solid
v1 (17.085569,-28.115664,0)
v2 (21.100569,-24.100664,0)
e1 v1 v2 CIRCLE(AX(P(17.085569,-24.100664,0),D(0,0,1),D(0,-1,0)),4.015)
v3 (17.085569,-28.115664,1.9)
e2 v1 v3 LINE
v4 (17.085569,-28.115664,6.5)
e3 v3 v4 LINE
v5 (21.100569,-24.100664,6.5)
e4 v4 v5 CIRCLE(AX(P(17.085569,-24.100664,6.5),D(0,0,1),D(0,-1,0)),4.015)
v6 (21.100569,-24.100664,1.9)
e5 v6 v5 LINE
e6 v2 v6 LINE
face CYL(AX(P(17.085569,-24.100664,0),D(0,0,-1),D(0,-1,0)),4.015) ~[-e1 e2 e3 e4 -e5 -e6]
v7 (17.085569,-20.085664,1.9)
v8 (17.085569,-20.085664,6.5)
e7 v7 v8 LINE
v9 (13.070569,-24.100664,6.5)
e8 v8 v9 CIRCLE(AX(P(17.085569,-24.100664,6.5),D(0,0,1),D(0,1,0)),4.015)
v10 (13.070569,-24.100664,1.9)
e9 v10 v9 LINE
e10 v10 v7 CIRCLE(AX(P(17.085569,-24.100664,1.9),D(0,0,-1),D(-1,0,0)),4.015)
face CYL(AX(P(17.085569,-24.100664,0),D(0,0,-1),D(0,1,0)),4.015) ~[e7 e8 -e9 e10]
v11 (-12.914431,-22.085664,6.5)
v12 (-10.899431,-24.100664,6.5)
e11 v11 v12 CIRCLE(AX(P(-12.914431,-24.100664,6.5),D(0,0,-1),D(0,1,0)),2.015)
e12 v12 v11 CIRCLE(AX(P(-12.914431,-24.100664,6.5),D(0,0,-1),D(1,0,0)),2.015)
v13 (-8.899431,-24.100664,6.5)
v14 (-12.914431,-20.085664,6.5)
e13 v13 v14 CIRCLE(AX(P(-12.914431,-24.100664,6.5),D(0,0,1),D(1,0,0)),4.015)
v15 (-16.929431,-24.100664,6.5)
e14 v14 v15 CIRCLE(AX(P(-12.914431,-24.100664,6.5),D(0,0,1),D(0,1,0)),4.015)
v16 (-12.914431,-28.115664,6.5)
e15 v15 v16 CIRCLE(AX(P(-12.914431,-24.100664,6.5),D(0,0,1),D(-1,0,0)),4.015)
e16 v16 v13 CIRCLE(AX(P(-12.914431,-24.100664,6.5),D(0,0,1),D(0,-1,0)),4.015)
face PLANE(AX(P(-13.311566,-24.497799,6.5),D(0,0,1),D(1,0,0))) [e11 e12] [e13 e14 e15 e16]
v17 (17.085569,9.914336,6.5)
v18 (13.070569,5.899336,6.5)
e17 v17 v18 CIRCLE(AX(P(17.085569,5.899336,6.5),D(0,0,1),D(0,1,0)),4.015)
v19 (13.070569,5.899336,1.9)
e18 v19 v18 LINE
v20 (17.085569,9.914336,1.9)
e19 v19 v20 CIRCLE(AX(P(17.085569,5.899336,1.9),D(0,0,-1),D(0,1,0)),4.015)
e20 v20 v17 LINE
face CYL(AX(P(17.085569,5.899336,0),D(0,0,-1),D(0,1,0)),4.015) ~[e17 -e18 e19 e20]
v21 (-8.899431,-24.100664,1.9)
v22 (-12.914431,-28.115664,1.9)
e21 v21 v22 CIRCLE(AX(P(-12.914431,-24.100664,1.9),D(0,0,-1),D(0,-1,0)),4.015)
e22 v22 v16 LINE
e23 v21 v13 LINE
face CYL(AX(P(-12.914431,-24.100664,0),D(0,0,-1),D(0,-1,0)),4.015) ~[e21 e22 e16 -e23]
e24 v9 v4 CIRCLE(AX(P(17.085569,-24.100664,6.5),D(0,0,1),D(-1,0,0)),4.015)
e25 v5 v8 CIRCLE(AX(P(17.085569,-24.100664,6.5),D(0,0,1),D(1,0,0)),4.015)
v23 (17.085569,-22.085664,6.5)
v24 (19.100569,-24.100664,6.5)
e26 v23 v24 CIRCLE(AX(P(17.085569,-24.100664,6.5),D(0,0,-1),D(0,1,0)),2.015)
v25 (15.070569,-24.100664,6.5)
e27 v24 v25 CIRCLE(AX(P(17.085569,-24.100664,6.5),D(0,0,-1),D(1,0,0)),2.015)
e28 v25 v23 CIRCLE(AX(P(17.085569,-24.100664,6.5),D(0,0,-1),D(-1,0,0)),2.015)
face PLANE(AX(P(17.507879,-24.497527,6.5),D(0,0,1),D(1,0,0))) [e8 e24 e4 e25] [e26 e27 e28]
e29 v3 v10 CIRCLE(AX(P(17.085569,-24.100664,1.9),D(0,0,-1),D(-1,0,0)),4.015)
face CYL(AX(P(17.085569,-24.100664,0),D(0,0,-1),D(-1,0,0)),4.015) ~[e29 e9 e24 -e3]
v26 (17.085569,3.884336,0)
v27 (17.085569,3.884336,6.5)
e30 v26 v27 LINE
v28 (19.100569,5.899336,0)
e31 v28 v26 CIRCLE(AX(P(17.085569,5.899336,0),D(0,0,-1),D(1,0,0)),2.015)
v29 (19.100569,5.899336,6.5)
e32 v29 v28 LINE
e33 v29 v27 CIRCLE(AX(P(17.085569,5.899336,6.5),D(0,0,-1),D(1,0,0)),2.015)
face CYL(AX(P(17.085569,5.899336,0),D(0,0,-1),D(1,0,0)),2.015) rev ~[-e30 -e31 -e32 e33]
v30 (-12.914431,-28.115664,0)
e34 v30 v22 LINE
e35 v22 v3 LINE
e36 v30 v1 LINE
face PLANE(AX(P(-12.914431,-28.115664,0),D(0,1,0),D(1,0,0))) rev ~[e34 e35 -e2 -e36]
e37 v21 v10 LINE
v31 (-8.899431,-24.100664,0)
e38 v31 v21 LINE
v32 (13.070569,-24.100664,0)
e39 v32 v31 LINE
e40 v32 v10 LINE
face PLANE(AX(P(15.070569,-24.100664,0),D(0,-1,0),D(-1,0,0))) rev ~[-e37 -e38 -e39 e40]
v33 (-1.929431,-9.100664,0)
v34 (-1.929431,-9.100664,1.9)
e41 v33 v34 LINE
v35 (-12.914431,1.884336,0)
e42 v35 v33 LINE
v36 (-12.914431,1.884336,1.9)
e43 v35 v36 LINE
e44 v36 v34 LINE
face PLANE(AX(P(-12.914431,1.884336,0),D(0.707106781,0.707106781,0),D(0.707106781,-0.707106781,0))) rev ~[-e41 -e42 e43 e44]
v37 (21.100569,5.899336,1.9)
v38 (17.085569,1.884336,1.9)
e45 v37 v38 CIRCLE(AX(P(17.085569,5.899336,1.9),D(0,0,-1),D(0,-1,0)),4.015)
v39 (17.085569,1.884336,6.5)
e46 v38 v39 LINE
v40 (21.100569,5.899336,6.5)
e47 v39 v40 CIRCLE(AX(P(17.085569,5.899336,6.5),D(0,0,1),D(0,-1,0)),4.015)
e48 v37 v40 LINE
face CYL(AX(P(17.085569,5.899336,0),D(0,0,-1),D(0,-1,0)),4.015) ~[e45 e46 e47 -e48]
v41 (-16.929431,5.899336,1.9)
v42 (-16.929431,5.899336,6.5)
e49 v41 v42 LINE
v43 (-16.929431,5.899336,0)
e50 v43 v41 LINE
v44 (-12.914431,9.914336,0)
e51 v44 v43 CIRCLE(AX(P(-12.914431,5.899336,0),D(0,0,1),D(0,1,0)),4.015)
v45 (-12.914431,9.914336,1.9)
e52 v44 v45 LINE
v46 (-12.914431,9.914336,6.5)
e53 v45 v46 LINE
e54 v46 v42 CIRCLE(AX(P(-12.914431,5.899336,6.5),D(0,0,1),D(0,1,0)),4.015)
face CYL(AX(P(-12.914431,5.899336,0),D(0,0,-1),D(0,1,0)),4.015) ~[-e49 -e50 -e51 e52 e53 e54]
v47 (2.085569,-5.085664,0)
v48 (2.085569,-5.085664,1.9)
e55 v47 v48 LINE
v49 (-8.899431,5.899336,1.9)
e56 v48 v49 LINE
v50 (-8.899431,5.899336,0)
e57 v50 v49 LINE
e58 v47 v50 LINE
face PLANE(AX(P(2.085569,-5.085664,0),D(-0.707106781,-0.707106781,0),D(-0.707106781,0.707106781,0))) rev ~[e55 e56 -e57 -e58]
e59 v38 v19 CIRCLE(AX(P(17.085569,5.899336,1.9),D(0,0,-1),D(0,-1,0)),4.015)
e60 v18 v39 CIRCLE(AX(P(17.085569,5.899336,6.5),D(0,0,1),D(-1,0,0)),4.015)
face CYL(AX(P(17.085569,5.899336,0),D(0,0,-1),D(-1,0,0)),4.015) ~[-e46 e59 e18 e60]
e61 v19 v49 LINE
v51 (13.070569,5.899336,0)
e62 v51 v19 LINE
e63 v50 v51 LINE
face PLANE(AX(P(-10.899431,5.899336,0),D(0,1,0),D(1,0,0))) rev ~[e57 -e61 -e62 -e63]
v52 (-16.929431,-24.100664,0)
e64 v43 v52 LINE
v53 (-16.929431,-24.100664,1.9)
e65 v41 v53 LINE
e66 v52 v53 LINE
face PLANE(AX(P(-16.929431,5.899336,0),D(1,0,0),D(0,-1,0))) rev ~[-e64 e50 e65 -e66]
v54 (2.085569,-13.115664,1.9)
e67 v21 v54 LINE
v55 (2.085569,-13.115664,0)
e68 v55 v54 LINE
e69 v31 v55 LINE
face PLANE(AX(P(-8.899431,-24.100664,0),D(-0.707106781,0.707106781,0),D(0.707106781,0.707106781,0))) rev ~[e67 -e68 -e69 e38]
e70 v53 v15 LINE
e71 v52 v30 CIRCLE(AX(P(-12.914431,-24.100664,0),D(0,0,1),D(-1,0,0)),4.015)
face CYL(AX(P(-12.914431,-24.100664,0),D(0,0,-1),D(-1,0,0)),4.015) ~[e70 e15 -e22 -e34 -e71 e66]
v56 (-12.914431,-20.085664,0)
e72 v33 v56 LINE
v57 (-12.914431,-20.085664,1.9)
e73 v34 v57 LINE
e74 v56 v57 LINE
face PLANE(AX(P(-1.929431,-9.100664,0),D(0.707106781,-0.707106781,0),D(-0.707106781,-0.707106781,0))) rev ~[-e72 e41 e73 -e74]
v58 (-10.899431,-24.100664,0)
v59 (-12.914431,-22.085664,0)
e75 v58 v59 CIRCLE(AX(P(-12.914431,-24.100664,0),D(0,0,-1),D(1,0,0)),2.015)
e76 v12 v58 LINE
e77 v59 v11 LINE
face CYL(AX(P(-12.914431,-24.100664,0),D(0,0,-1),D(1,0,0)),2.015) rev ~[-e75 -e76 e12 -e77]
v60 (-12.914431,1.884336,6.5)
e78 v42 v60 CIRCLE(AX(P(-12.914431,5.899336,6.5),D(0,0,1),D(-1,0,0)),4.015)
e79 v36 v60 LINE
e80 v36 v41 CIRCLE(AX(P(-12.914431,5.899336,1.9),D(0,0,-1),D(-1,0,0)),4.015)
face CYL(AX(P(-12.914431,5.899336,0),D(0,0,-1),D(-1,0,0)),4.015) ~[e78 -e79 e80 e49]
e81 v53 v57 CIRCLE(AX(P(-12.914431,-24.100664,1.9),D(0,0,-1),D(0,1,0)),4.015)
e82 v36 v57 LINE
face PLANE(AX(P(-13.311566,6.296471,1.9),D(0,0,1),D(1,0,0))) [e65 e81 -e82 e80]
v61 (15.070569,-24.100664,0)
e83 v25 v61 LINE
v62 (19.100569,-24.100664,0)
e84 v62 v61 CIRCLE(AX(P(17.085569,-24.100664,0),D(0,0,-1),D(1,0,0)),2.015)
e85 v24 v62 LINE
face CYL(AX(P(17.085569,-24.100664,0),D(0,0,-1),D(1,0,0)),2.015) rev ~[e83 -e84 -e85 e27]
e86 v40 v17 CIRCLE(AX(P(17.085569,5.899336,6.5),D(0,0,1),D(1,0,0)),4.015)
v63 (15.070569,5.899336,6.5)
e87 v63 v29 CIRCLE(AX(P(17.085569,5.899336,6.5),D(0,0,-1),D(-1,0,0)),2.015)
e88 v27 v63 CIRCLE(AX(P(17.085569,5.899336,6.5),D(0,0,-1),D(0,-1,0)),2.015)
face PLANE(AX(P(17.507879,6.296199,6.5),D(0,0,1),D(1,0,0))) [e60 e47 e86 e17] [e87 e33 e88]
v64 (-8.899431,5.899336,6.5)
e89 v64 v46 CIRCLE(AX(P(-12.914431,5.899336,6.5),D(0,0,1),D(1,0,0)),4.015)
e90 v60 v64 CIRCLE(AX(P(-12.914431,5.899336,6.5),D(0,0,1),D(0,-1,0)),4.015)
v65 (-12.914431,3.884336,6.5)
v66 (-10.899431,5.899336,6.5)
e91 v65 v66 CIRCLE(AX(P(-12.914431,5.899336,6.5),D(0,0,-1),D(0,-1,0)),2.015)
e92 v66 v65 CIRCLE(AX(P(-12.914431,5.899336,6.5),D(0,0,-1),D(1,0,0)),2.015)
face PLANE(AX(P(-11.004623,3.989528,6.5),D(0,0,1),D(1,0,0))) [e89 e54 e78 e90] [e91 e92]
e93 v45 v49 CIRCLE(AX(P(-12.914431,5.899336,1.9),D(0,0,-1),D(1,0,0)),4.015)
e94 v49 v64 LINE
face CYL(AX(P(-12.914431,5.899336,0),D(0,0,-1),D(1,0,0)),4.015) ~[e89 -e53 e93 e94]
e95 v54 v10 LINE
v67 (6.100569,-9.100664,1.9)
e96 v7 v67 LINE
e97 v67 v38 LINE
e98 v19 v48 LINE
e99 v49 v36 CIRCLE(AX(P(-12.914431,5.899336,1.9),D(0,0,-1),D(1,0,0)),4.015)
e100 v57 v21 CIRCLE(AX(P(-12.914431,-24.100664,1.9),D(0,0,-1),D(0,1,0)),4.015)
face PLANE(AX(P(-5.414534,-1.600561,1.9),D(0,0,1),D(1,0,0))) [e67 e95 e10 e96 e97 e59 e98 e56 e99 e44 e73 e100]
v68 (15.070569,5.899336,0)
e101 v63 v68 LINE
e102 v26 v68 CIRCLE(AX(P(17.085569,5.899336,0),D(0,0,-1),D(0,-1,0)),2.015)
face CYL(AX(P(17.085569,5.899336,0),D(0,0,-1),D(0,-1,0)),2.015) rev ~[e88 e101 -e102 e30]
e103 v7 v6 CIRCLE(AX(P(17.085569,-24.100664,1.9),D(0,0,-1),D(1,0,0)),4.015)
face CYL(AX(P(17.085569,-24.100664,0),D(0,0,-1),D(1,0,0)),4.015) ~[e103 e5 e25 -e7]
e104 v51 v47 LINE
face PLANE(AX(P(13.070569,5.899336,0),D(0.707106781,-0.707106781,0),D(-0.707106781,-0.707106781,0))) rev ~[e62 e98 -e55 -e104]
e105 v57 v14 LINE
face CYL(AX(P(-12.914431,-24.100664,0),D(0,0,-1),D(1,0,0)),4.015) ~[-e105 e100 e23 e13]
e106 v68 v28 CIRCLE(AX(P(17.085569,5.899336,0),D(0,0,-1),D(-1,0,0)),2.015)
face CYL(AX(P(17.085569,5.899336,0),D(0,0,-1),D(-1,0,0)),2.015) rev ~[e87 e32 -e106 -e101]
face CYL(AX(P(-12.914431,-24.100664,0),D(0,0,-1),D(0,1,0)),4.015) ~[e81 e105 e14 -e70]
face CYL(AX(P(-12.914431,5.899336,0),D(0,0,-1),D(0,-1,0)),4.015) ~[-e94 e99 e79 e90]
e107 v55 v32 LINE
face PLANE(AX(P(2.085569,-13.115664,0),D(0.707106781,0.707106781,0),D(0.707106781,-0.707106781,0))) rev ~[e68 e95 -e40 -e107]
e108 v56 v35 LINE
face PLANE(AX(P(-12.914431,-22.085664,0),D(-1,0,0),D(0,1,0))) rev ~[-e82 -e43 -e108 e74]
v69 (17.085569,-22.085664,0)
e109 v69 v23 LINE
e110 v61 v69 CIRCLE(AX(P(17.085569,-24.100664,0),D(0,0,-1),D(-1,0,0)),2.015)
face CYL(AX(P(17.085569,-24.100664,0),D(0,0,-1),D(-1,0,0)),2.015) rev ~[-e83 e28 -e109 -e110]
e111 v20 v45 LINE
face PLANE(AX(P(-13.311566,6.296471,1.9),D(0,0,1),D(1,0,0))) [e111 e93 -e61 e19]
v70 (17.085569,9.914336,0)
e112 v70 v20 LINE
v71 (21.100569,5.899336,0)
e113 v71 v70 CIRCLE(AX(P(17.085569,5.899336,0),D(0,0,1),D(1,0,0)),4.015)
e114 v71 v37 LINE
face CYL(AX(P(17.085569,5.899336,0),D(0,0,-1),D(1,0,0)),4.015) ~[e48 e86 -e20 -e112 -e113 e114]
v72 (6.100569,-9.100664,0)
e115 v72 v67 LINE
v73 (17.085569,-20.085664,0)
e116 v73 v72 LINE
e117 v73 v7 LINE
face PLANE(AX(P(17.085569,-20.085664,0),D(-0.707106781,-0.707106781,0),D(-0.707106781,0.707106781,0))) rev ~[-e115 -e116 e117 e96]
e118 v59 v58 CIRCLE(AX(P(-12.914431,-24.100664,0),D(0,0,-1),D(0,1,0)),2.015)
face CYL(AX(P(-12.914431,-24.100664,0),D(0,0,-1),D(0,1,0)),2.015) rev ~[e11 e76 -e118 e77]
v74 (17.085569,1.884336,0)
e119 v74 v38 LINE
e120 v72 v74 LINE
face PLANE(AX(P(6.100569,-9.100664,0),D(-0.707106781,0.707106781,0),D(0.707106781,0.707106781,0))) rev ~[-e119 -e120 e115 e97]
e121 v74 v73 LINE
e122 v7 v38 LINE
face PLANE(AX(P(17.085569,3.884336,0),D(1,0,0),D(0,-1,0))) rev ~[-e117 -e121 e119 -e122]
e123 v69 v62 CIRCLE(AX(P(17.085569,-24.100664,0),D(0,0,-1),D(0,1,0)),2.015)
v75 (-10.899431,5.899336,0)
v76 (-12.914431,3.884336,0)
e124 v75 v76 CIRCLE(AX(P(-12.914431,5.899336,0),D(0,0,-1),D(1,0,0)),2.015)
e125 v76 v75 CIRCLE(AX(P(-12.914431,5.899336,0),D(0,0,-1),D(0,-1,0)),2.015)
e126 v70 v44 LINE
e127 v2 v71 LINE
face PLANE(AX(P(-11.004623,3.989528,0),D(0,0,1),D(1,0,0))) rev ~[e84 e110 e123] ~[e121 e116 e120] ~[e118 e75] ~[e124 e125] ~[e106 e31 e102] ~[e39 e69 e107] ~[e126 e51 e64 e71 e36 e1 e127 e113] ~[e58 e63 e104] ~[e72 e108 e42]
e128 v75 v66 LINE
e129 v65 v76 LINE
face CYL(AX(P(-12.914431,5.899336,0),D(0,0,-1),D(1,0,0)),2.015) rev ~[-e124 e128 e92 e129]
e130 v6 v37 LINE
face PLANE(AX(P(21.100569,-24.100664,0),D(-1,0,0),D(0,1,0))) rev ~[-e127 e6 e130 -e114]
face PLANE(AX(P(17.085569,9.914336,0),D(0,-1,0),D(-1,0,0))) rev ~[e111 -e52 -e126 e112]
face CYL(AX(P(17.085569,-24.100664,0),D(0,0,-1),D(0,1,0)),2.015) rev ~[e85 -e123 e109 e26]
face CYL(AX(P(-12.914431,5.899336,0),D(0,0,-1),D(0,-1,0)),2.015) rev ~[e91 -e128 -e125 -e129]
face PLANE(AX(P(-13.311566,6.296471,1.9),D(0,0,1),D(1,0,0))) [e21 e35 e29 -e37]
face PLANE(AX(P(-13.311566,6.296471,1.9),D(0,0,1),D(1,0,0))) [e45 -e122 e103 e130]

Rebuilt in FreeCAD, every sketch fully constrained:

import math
import FreeCAD as App
import Part
import Sketcher
Q = App.Units.Quantity

doc = App.newDocument("Part")
body = doc.addObject("PartDesign::Body", "Body")

sketch1 = body.newObject("Sketcher::SketchObject", "Sketch")
sketch1.AttachmentSupport = (doc.getObject("XY_Plane"), [""])
sketch1.MapMode = "FlatFace"
sketch1.addGeometry([
    Part.ArcOfCircle(Part.Circle(App.Vector(-12.914431, 5.899336, 0), App.Vector(0, 0, 1), 4.015), math.radians(-90), math.radians(0)),
    Part.ArcOfCircle(Part.Circle(App.Vector(-12.914431, 5.899336, 0), App.Vector(0, 0, 1), 4.015), math.radians(0), math.radians(90)),
    Part.ArcOfCircle(Part.Circle(App.Vector(-12.914431, 5.899336, 0), App.Vector(0, 0, 1), 4.015), math.radians(90), math.radians(180)),
    Part.ArcOfCircle(Part.Circle(App.Vector(-12.914431, 5.899336, 0), App.Vector(0, 0, 1), 4.015), math.radians(180), math.radians(270)),
    Part.ArcOfCircle(Part.Circle(App.Vector(-12.914431, 5.899336, 0), App.Vector(0, 0, 1), 2.015), math.radians(-90), math.radians(0)),
    Part.ArcOfCircle(Part.Circle(App.Vector(-12.914431, 5.899336, 0), App.Vector(0, 0, 1), 2.015), math.radians(0), math.radians(270)),
], False)
sketch1.addConstraint([
    Sketcher.Constraint("Tangent", 0, 2, 1, 1),
    Sketcher.Constraint("Tangent", 1, 2, 2, 1),
    Sketcher.Constraint("Tangent", 2, 2, 3, 1),
    Sketcher.Constraint("Tangent", 3, 2, 0, 1),
    Sketcher.Constraint("Tangent", 4, 1, 5, 2),
    Sketcher.Constraint("Coincident", 5, 1, 4, 2),
    Sketcher.Constraint("Coincident", 4, 3, 0, 3),
    Sketcher.Constraint("Equal", 0, 1),
    Sketcher.Constraint("Horizontal", 5, 3, 0, 2),
    Sketcher.Constraint("Horizontal", 0, 2, 2, 2),
    Sketcher.Constraint("Horizontal", 2, 2, 5, 1),
    Sketcher.Constraint("Vertical", 5, 3, 1, 2),
    Sketcher.Constraint("Vertical", 1, 2, 3, 2),
    Sketcher.Constraint("Vertical", 3, 2, 4, 1),
    Sketcher.Constraint("Radius", 0, Q("4.015 mm")),
    Sketcher.Constraint("Radius", 4, Q("2.015 mm")),
    Sketcher.Constraint("DistanceX", 0, 3, -1, 1, Q("12.914431 mm")),
    Sketcher.Constraint("DistanceY", -1, 1, 0, 3, Q("5.899336 mm")),
])
pad1 = body.newObject("PartDesign::Pad", "Pad")
pad1.Profile = sketch1
pad1.Length = 6.5
body2 = doc.addObject("PartDesign::Body", "Body001")

sketch2 = body2.newObject("Sketcher::SketchObject", "Sketch001")
sketch2.AttachmentSupport = (doc.getObject("XY_Plane001"), [""])
sketch2.MapMode = "FlatFace"
sketch2.addGeometry([
    Part.ArcOfCircle(Part.Circle(App.Vector(17.085569, 5.899336, 0), App.Vector(0, 0, 1), 4.015), math.radians(90), math.radians(180)),
    Part.ArcOfCircle(Part.Circle(App.Vector(17.085569, 5.899336, 0), App.Vector(0, 0, 1), 4.015), math.radians(180), math.radians(270)),
    Part.ArcOfCircle(Part.Circle(App.Vector(17.085569, 5.899336, 0), App.Vector(0, 0, 1), 4.015), math.radians(-90), math.radians(0)),
    Part.ArcOfCircle(Part.Circle(App.Vector(17.085569, 5.899336, 0), App.Vector(0, 0, 1), 4.015), math.radians(0), math.radians(90)),
    Part.ArcOfCircle(Part.Circle(App.Vector(17.085569, 5.899336, 0), App.Vector(0, 0, 1), 2.015), math.radians(0), math.radians(180)),
    Part.ArcOfCircle(Part.Circle(App.Vector(17.085569, 5.899336, 0), App.Vector(0, 0, 1), 2.015), math.radians(-90), math.radians(0)),
    Part.ArcOfCircle(Part.Circle(App.Vector(17.085569, 5.899336, 0), App.Vector(0, 0, 1), 2.015), math.radians(180), math.radians(270)),
], False)
sketch2.addConstraint([
    Sketcher.Constraint("Tangent", 0, 2, 1, 1),
    Sketcher.Constraint("Tangent", 1, 2, 2, 1),
    Sketcher.Constraint("Tangent", 2, 2, 3, 1),
    Sketcher.Constraint("Tangent", 3, 2, 0, 1),
    Sketcher.Constraint("Tangent", 4, 1, 5, 2),
    Sketcher.Constraint("Tangent", 5, 1, 6, 2),
    Sketcher.Constraint("Tangent", 6, 1, 4, 2),
    Sketcher.Constraint("Coincident", 4, 3, 0, 3),
    Sketcher.Constraint("Equal", 0, 1),
    Sketcher.Constraint("Horizontal", 6, 3, 0, 2),
    Sketcher.Constraint("Horizontal", 0, 2, 2, 2),
    Sketcher.Constraint("Horizontal", 2, 2, 4, 1),
    Sketcher.Constraint("Horizontal", 4, 1, 6, 1),
    Sketcher.Constraint("Vertical", 6, 3, 1, 2),
    Sketcher.Constraint("Vertical", 1, 2, 3, 2),
    Sketcher.Constraint("Vertical", 3, 2, 5, 1),
    Sketcher.Constraint("Radius", 0, Q("4.015 mm")),
    Sketcher.Constraint("Radius", 4, Q("2.015 mm")),
    Sketcher.Constraint("DistanceX", -1, 1, 0, 3, Q("17.085569 mm")),
    Sketcher.Constraint("DistanceY", -1, 1, 0, 3, Q("5.899336 mm")),
])
pad2 = body2.newObject("PartDesign::Pad", "Pad001")
pad2.Profile = sketch2
pad2.Length = 6.5
body3 = doc.addObject("PartDesign::Body", "Body002")

sketch3 = body3.newObject("Sketcher::SketchObject", "Sketch002")
sketch3.AttachmentSupport = (doc.getObject("XY_Plane002"), [""])
sketch3.MapMode = "FlatFace"
sketch3.addGeometry([
    Part.ArcOfCircle(Part.Circle(App.Vector(17.085569, -24.100664, 0), App.Vector(0, 0, 1), 4.015), math.radians(0), math.radians(90)),
    Part.ArcOfCircle(Part.Circle(App.Vector(17.085569, -24.100664, 0), App.Vector(0, 0, 1), 4.015), math.radians(90), math.radians(180)),
    Part.ArcOfCircle(Part.Circle(App.Vector(17.085569, -24.100664, 0), App.Vector(0, 0, 1), 4.015), math.radians(180), math.radians(270)),
    Part.ArcOfCircle(Part.Circle(App.Vector(17.085569, -24.100664, 0), App.Vector(0, 0, 1), 4.015), math.radians(-90), math.radians(0)),
    Part.ArcOfCircle(Part.Circle(App.Vector(17.085569, -24.100664, 0), App.Vector(0, 0, 1), 2.015), math.radians(0), math.radians(90)),
    Part.ArcOfCircle(Part.Circle(App.Vector(17.085569, -24.100664, 0), App.Vector(0, 0, 1), 2.015), math.radians(180), math.radians(360)),
    Part.ArcOfCircle(Part.Circle(App.Vector(17.085569, -24.100664, 0), App.Vector(0, 0, 1), 2.015), math.radians(90), math.radians(180)),
], False)
sketch3.addConstraint([
    Sketcher.Constraint("Tangent", 0, 2, 1, 1),
    Sketcher.Constraint("Tangent", 1, 2, 2, 1),
    Sketcher.Constraint("Tangent", 2, 2, 3, 1),
    Sketcher.Constraint("Tangent", 3, 2, 0, 1),
    Sketcher.Constraint("Tangent", 4, 1, 5, 2),
    Sketcher.Constraint("Tangent", 5, 1, 6, 2),
    Sketcher.Constraint("Tangent", 6, 1, 4, 2),
    Sketcher.Constraint("Coincident", 4, 3, 0, 3),
    Sketcher.Constraint("Equal", 0, 1),
    Sketcher.Constraint("Horizontal", 6, 3, 1, 2),
    Sketcher.Constraint("Horizontal", 1, 2, 3, 2),
    Sketcher.Constraint("Horizontal", 3, 2, 4, 1),
    Sketcher.Constraint("Horizontal", 4, 1, 5, 1),
    Sketcher.Constraint("Vertical", 6, 3, 0, 2),
    Sketcher.Constraint("Vertical", 0, 2, 2, 2),
    Sketcher.Constraint("Vertical", 2, 2, 6, 1),
    Sketcher.Constraint("Radius", 0, Q("4.015 mm")),
    Sketcher.Constraint("Radius", 4, Q("2.015 mm")),
    Sketcher.Constraint("DistanceX", -1, 1, 0, 3, Q("17.085569 mm")),
    Sketcher.Constraint("DistanceY", 0, 3, -1, 1, Q("24.100664 mm")),
])
pad3 = body3.newObject("PartDesign::Pad", "Pad002")
pad3.Profile = sketch3
pad3.Length = 6.5
body4 = doc.addObject("PartDesign::Body", "Body003")

sketch4 = body4.newObject("Sketcher::SketchObject", "Sketch003")
sketch4.AttachmentSupport = (doc.getObject("XY_Plane003"), [""])
sketch4.MapMode = "FlatFace"
sketch4.addGeometry([
    Part.ArcOfCircle(Part.Circle(App.Vector(-12.914431, -24.100664, 0), App.Vector(0, 0, 1), 4.015), math.radians(90), math.radians(180)),
    Part.ArcOfCircle(Part.Circle(App.Vector(-12.914431, -24.100664, 0), App.Vector(0, 0, 1), 4.015), math.radians(180), math.radians(270)),
    Part.ArcOfCircle(Part.Circle(App.Vector(-12.914431, -24.100664, 0), App.Vector(0, 0, 1), 4.015), math.radians(-90), math.radians(0)),
    Part.ArcOfCircle(Part.Circle(App.Vector(-12.914431, -24.100664, 0), App.Vector(0, 0, 1), 4.015), math.radians(0), math.radians(90)),
    Part.ArcOfCircle(Part.Circle(App.Vector(-12.914431, -24.100664, 0), App.Vector(0, 0, 1), 2.015), math.radians(90), math.radians(360)),
    Part.ArcOfCircle(Part.Circle(App.Vector(-12.914431, -24.100664, 0), App.Vector(0, 0, 1), 2.015), math.radians(0), math.radians(90)),
], False)
sketch4.addConstraint([
    Sketcher.Constraint("Tangent", 0, 2, 1, 1),
    Sketcher.Constraint("Tangent", 1, 2, 2, 1),
    Sketcher.Constraint("Tangent", 2, 2, 3, 1),
    Sketcher.Constraint("Tangent", 3, 2, 0, 1),
    Sketcher.Constraint("Tangent", 4, 1, 5, 2),
    Sketcher.Constraint("Coincident", 5, 1, 4, 2),
    Sketcher.Constraint("Coincident", 4, 3, 0, 3),
    Sketcher.Constraint("Equal", 0, 1),
    Sketcher.Constraint("Horizontal", 5, 3, 0, 2),
    Sketcher.Constraint("Horizontal", 0, 2, 2, 2),
    Sketcher.Constraint("Horizontal", 2, 2, 5, 1),
    Sketcher.Constraint("Vertical", 5, 3, 1, 2),
    Sketcher.Constraint("Vertical", 1, 2, 3, 2),
    Sketcher.Constraint("Vertical", 3, 2, 4, 1),
    Sketcher.Constraint("Radius", 0, Q("4.015 mm")),
    Sketcher.Constraint("Radius", 4, Q("2.015 mm")),
    Sketcher.Constraint("DistanceX", 0, 3, -1, 1, Q("12.914431 mm")),
    Sketcher.Constraint("DistanceY", 0, 3, -1, 1, Q("24.100664 mm")),
])
pad4 = body4.newObject("PartDesign::Pad", "Pad003")
pad4.Profile = sketch4
pad4.Length = 6.5
body.AllowCompound = True
doc.recompute()

boolean = body.newObject("PartDesign::Boolean", "Boolean")
boolean.Type = "Fuse"
boolean.addObjects([body2])
doc.recompute()

boolean2 = body.newObject("PartDesign::Boolean", "Boolean001")
boolean2.Type = "Fuse"
boolean2.addObjects([body3])
doc.recompute()

boolean3 = body.newObject("PartDesign::Boolean", "Boolean002")
boolean3.Type = "Fuse"
boolean3.addObjects([body4])

sketch5 = body.newObject("Sketcher::SketchObject", "Sketch004")
sketch5.AttachmentSupport = (doc.getObject("XY_Plane"), [""])
sketch5.MapMode = "FlatFace"
sketch5.addGeometry([
    Part.LineSegment(App.Vector(21.100569, -24.100664, 0), App.Vector(21.100569, 5.899336, 0)),
    Part.ArcOfCircle(Part.Circle(App.Vector(17.085569, 5.899336, 0), App.Vector(0, 0, 1), 4.015), math.radians(0), math.radians(90)),
    Part.LineSegment(App.Vector(17.085569, 9.914336, 0), App.Vector(-12.914431, 9.914336, 0)),
    Part.ArcOfCircle(Part.Circle(App.Vector(-12.914431, 5.899336, 0), App.Vector(0, 0, 1), 4.015), math.radians(90), math.radians(180)),
    Part.LineSegment(App.Vector(-16.929431, 5.899336, 0), App.Vector(-16.929431, -24.100664, 0)),
    Part.ArcOfCircle(Part.Circle(App.Vector(-12.914431, -24.100664, 0), App.Vector(0, 0, 1), 4.015), math.radians(180), math.radians(270)),
    Part.LineSegment(App.Vector(-12.914431, -28.115664, 0), App.Vector(17.085569, -28.115664, 0)),
    Part.ArcOfCircle(Part.Circle(App.Vector(17.085569, -24.100664, 0), App.Vector(0, 0, 1), 4.015), math.radians(-90), math.radians(0)),
    Part.ArcOfCircle(Part.Circle(App.Vector(-12.914431, 5.899336, 0), App.Vector(0, 0, 1), 2.015), math.radians(0), math.radians(270)),
    Part.LineSegment(App.Vector(-10.899431, 5.899336, 0), App.Vector(-8.899431, 5.899336, 0)),
    Part.LineSegment(App.Vector(-8.899431, 5.899336, 0), App.Vector(13.070569, 5.899336, 0)),
    Part.LineSegment(App.Vector(13.070569, 5.899336, 0), App.Vector(15.070569, 5.899336, 0)),
    Part.ArcOfCircle(Part.Circle(App.Vector(17.085569, 5.899336, 0), App.Vector(0, 0, 1), 2.015), math.radians(0), math.radians(180)),
    Part.ArcOfCircle(Part.Circle(App.Vector(17.085569, 5.899336, 0), App.Vector(0, 0, 1), 2.015), math.radians(-90), math.radians(0)),
    Part.LineSegment(App.Vector(17.085569, 3.884336, 0), App.Vector(17.085569, 1.884336, 0)),
    Part.LineSegment(App.Vector(17.085569, 1.884336, 0), App.Vector(17.085569, -20.085664, 0)),
    Part.LineSegment(App.Vector(17.085569, -20.085664, 0), App.Vector(17.085569, -22.085664, 0)),
    Part.ArcOfCircle(Part.Circle(App.Vector(17.085569, -24.100664, 0), App.Vector(0, 0, 1), 2.015), math.radians(0), math.radians(90)),
    Part.ArcOfCircle(Part.Circle(App.Vector(17.085569, -24.100664, 0), App.Vector(0, 0, 1), 2.015), math.radians(180), math.radians(360)),
    Part.LineSegment(App.Vector(15.070569, -24.100664, 0), App.Vector(13.070569, -24.100664, 0)),
    Part.LineSegment(App.Vector(13.070569, -24.100664, 0), App.Vector(-8.899431, -24.100664, 0)),
    Part.LineSegment(App.Vector(-8.899431, -24.100664, 0), App.Vector(-10.899431, -24.100664, 0)),
    Part.ArcOfCircle(Part.Circle(App.Vector(-12.914431, -24.100664, 0), App.Vector(0, 0, 1), 2.015), math.radians(90), math.radians(360)),
    Part.LineSegment(App.Vector(-12.914431, -22.085664, 0), App.Vector(-12.914431, -20.085664, 0)),
    Part.LineSegment(App.Vector(-12.914431, -20.085664, 0), App.Vector(-12.914431, 1.884336, 0)),
    Part.LineSegment(App.Vector(-12.914431, 1.884336, 0), App.Vector(-12.914431, 3.884336, 0)),
    Part.LineSegment(App.Vector(2.085569, -5.085664, 0), App.Vector(-8.899431, 5.899336, 0)),
    Part.ArcOfCircle(Part.Circle(App.Vector(-12.914431, 5.899336, 0), App.Vector(0, 0, 1), 4.015), math.radians(-90), math.radians(0)),
    Part.LineSegment(App.Vector(-12.914431, 1.884336, 0), App.Vector(-1.929431, -9.100664, 0)),
    Part.LineSegment(App.Vector(-1.929431, -9.100664, 0), App.Vector(-12.914431, -20.085664, 0)),
    Part.ArcOfCircle(Part.Circle(App.Vector(-12.914431, -24.100664, 0), App.Vector(0, 0, 1), 4.015), math.radians(0), math.radians(90)),
    Part.LineSegment(App.Vector(-8.899431, -24.100664, 0), App.Vector(2.085569, -13.115664, 0)),
    Part.LineSegment(App.Vector(2.085569, -13.115664, 0), App.Vector(13.070569, -24.100664, 0)),
    Part.ArcOfCircle(Part.Circle(App.Vector(17.085569, -24.100664, 0), App.Vector(0, 0, 1), 4.015), math.radians(90), math.radians(180)),
    Part.LineSegment(App.Vector(17.085569, -20.085664, 0), App.Vector(6.100569, -9.100664, 0)),
    Part.LineSegment(App.Vector(6.100569, -9.100664, 0), App.Vector(17.085569, 1.884336, 0)),
    Part.ArcOfCircle(Part.Circle(App.Vector(17.085569, 5.899336, 0), App.Vector(0, 0, 1), 4.015), math.radians(180), math.radians(270)),
    Part.LineSegment(App.Vector(13.070569, 5.899336, 0), App.Vector(2.085569, -5.085664, 0)),
], False)
sketch5.addConstraint([
    Sketcher.Constraint("Tangent", 0, 2, 1, 1),
    Sketcher.Constraint("Tangent", 1, 2, 2, 1),
    Sketcher.Constraint("Tangent", 2, 2, 3, 1),
    Sketcher.Constraint("Tangent", 3, 2, 4, 1),
    Sketcher.Constraint("Tangent", 4, 2, 5, 1),
    Sketcher.Constraint("Tangent", 5, 2, 6, 1),
    Sketcher.Constraint("Tangent", 6, 2, 7, 1),
    Sketcher.Constraint("Tangent", 7, 2, 0, 1),
    Sketcher.Constraint("Coincident", 8, 1, 9, 1),
    Sketcher.Constraint("Coincident", 9, 2, 10, 1),
    Sketcher.Constraint("Coincident", 10, 2, 11, 1),
    Sketcher.Constraint("Coincident", 11, 2, 12, 2),
    Sketcher.Constraint("Tangent", 12, 1, 13, 2),
    Sketcher.Constraint("Coincident", 13, 1, 14, 1),
    Sketcher.Constraint("Coincident", 14, 2, 15, 1),
    Sketcher.Constraint("Coincident", 15, 2, 16, 1),
    Sketcher.Constraint("Coincident", 16, 2, 17, 2),
    Sketcher.Constraint("Tangent", 17, 1, 18, 2),
    Sketcher.Constraint("Coincident", 18, 1, 19, 1),
    Sketcher.Constraint("Coincident", 19, 2, 20, 1),
    Sketcher.Constraint("Coincident", 20, 2, 21, 1),
    Sketcher.Constraint("Coincident", 21, 2, 22, 2),
    Sketcher.Constraint("Coincident", 22, 1, 23, 1),
    Sketcher.Constraint("Coincident", 23, 2, 24, 1),
    Sketcher.Constraint("Coincident", 24, 2, 25, 1),
    Sketcher.Constraint("Coincident", 25, 2, 8, 2),
    Sketcher.Constraint("Coincident", 26, 2, 27, 2),
    Sketcher.Constraint("Coincident", 27, 1, 28, 1),
    Sketcher.Constraint("Coincident", 28, 2, 29, 1),
    Sketcher.Constraint("Coincident", 29, 2, 30, 2),
    Sketcher.Constraint("Coincident", 30, 1, 31, 1),
    Sketcher.Constraint("Coincident", 31, 2, 32, 1),
    Sketcher.Constraint("Coincident", 32, 2, 33, 2),
    Sketcher.Constraint("Coincident", 33, 1, 34, 1),
    Sketcher.Constraint("Coincident", 34, 2, 35, 1),
    Sketcher.Constraint("Coincident", 35, 2, 36, 2),
    Sketcher.Constraint("Coincident", 36, 1, 37, 1),
    Sketcher.Constraint("Coincident", 37, 2, 26, 1),
    Sketcher.Constraint("Vertical", 0),
    Sketcher.Constraint("Horizontal", 2),
    Sketcher.Constraint("Vertical", 4),
    Sketcher.Constraint("Horizontal", 6),
    Sketcher.Constraint("Horizontal", 9),
    Sketcher.Constraint("Horizontal", 10),
    Sketcher.Constraint("Horizontal", 11),
    Sketcher.Constraint("Vertical", 14),
    Sketcher.Constraint("Vertical", 15),
    Sketcher.Constraint("Vertical", 16),
    Sketcher.Constraint("Horizontal", 19),
    Sketcher.Constraint("Horizontal", 20),
    Sketcher.Constraint("Horizontal", 21),
    Sketcher.Constraint("Vertical", 23),
    Sketcher.Constraint("Vertical", 24),
    Sketcher.Constraint("Vertical", 25),
    Sketcher.Constraint("Coincident", 8, 3, 3, 3),
    Sketcher.Constraint("Coincident", 12, 3, 1, 3),
    Sketcher.Constraint("Coincident", 17, 3, 7, 3),
    Sketcher.Constraint("Coincident", 22, 3, 5, 3),
    Sketcher.Constraint("Coincident", 27, 3, 3, 3),
    Sketcher.Constraint("Coincident", 30, 3, 5, 3),
    Sketcher.Constraint("Coincident", 33, 3, 7, 3),
    Sketcher.Constraint("Coincident", 36, 3, 1, 3),
    Sketcher.Constraint("Coincident", 26, 2, 9, 2),
    Sketcher.Constraint("Coincident", 27, 1, 24, 2),
    Sketcher.Constraint("Coincident", 29, 2, 23, 2),
    Sketcher.Constraint("Coincident", 30, 1, 20, 2),
    Sketcher.Constraint("Coincident", 32, 2, 19, 2),
    Sketcher.Constraint("Coincident", 33, 1, 15, 2),
    Sketcher.Constraint("Coincident", 35, 2, 14, 2),
    Sketcher.Constraint("Coincident", 36, 1, 10, 2),
    Sketcher.Constraint("Equal", 1, 3),
    Sketcher.Constraint("Equal", 3, 5),
    Sketcher.Constraint("Equal", 5, 7),
    Sketcher.Constraint("Equal", 8, 12),
    Sketcher.Constraint("Equal", 12, 13),
    Sketcher.Constraint("Equal", 13, 17),
    Sketcher.Constraint("Equal", 17, 18),
    Sketcher.Constraint("Equal", 18, 22),
    Sketcher.Constraint("Equal", 7, 27),
    Sketcher.Constraint("Equal", 27, 30),
    Sketcher.Constraint("Equal", 30, 33),
    Sketcher.Constraint("Equal", 33, 36),
    Sketcher.Constraint("Parallel", 26, 28),
    Sketcher.Constraint("Perpendicular", 28, 29),
    Sketcher.Constraint("Parallel", 29, 31),
    Sketcher.Constraint("Perpendicular", 31, 32),
    Sketcher.Constraint("Parallel", 32, 34),
    Sketcher.Constraint("Perpendicular", 34, 35),
    Sketcher.Constraint("Parallel", 35, 37),
    Sketcher.Constraint("Horizontal", 3, 2, 8, 1),
    Sketcher.Constraint("Horizontal", 11, 2, 12, 1),
    Sketcher.Constraint("Horizontal", 7, 2, 17, 1),
    Sketcher.Constraint("Horizontal", 17, 1, 18, 1),
    Sketcher.Constraint("Horizontal", 28, 2, 34, 2),
    Sketcher.Constraint("Vertical", 6, 2, 13, 1),
    Sketcher.Constraint("Vertical", 5, 2, 22, 1),
    Sketcher.Constraint("Equal", 6, 0),
    Sketcher.Constraint("DistanceX", 2, 2, 2, 1, Q("30 mm")),
    Sketcher.Constraint("DistanceX", 9, 1, 9, 2, Q("2 mm")),
    Sketcher.Constraint("Radius", 1, Q("4.015 mm")),
    Sketcher.Constraint("DistanceX", -1, 1, 1, 3, Q("17.085569 mm")),
    Sketcher.Constraint("DistanceY", -1, 1, 1, 3, Q("5.899336 mm")),
])
pad5 = body.newObject("PartDesign::Pad", "Pad004")
pad5.Profile = sketch5
pad5.Length = 1.9

doc.recompute()
